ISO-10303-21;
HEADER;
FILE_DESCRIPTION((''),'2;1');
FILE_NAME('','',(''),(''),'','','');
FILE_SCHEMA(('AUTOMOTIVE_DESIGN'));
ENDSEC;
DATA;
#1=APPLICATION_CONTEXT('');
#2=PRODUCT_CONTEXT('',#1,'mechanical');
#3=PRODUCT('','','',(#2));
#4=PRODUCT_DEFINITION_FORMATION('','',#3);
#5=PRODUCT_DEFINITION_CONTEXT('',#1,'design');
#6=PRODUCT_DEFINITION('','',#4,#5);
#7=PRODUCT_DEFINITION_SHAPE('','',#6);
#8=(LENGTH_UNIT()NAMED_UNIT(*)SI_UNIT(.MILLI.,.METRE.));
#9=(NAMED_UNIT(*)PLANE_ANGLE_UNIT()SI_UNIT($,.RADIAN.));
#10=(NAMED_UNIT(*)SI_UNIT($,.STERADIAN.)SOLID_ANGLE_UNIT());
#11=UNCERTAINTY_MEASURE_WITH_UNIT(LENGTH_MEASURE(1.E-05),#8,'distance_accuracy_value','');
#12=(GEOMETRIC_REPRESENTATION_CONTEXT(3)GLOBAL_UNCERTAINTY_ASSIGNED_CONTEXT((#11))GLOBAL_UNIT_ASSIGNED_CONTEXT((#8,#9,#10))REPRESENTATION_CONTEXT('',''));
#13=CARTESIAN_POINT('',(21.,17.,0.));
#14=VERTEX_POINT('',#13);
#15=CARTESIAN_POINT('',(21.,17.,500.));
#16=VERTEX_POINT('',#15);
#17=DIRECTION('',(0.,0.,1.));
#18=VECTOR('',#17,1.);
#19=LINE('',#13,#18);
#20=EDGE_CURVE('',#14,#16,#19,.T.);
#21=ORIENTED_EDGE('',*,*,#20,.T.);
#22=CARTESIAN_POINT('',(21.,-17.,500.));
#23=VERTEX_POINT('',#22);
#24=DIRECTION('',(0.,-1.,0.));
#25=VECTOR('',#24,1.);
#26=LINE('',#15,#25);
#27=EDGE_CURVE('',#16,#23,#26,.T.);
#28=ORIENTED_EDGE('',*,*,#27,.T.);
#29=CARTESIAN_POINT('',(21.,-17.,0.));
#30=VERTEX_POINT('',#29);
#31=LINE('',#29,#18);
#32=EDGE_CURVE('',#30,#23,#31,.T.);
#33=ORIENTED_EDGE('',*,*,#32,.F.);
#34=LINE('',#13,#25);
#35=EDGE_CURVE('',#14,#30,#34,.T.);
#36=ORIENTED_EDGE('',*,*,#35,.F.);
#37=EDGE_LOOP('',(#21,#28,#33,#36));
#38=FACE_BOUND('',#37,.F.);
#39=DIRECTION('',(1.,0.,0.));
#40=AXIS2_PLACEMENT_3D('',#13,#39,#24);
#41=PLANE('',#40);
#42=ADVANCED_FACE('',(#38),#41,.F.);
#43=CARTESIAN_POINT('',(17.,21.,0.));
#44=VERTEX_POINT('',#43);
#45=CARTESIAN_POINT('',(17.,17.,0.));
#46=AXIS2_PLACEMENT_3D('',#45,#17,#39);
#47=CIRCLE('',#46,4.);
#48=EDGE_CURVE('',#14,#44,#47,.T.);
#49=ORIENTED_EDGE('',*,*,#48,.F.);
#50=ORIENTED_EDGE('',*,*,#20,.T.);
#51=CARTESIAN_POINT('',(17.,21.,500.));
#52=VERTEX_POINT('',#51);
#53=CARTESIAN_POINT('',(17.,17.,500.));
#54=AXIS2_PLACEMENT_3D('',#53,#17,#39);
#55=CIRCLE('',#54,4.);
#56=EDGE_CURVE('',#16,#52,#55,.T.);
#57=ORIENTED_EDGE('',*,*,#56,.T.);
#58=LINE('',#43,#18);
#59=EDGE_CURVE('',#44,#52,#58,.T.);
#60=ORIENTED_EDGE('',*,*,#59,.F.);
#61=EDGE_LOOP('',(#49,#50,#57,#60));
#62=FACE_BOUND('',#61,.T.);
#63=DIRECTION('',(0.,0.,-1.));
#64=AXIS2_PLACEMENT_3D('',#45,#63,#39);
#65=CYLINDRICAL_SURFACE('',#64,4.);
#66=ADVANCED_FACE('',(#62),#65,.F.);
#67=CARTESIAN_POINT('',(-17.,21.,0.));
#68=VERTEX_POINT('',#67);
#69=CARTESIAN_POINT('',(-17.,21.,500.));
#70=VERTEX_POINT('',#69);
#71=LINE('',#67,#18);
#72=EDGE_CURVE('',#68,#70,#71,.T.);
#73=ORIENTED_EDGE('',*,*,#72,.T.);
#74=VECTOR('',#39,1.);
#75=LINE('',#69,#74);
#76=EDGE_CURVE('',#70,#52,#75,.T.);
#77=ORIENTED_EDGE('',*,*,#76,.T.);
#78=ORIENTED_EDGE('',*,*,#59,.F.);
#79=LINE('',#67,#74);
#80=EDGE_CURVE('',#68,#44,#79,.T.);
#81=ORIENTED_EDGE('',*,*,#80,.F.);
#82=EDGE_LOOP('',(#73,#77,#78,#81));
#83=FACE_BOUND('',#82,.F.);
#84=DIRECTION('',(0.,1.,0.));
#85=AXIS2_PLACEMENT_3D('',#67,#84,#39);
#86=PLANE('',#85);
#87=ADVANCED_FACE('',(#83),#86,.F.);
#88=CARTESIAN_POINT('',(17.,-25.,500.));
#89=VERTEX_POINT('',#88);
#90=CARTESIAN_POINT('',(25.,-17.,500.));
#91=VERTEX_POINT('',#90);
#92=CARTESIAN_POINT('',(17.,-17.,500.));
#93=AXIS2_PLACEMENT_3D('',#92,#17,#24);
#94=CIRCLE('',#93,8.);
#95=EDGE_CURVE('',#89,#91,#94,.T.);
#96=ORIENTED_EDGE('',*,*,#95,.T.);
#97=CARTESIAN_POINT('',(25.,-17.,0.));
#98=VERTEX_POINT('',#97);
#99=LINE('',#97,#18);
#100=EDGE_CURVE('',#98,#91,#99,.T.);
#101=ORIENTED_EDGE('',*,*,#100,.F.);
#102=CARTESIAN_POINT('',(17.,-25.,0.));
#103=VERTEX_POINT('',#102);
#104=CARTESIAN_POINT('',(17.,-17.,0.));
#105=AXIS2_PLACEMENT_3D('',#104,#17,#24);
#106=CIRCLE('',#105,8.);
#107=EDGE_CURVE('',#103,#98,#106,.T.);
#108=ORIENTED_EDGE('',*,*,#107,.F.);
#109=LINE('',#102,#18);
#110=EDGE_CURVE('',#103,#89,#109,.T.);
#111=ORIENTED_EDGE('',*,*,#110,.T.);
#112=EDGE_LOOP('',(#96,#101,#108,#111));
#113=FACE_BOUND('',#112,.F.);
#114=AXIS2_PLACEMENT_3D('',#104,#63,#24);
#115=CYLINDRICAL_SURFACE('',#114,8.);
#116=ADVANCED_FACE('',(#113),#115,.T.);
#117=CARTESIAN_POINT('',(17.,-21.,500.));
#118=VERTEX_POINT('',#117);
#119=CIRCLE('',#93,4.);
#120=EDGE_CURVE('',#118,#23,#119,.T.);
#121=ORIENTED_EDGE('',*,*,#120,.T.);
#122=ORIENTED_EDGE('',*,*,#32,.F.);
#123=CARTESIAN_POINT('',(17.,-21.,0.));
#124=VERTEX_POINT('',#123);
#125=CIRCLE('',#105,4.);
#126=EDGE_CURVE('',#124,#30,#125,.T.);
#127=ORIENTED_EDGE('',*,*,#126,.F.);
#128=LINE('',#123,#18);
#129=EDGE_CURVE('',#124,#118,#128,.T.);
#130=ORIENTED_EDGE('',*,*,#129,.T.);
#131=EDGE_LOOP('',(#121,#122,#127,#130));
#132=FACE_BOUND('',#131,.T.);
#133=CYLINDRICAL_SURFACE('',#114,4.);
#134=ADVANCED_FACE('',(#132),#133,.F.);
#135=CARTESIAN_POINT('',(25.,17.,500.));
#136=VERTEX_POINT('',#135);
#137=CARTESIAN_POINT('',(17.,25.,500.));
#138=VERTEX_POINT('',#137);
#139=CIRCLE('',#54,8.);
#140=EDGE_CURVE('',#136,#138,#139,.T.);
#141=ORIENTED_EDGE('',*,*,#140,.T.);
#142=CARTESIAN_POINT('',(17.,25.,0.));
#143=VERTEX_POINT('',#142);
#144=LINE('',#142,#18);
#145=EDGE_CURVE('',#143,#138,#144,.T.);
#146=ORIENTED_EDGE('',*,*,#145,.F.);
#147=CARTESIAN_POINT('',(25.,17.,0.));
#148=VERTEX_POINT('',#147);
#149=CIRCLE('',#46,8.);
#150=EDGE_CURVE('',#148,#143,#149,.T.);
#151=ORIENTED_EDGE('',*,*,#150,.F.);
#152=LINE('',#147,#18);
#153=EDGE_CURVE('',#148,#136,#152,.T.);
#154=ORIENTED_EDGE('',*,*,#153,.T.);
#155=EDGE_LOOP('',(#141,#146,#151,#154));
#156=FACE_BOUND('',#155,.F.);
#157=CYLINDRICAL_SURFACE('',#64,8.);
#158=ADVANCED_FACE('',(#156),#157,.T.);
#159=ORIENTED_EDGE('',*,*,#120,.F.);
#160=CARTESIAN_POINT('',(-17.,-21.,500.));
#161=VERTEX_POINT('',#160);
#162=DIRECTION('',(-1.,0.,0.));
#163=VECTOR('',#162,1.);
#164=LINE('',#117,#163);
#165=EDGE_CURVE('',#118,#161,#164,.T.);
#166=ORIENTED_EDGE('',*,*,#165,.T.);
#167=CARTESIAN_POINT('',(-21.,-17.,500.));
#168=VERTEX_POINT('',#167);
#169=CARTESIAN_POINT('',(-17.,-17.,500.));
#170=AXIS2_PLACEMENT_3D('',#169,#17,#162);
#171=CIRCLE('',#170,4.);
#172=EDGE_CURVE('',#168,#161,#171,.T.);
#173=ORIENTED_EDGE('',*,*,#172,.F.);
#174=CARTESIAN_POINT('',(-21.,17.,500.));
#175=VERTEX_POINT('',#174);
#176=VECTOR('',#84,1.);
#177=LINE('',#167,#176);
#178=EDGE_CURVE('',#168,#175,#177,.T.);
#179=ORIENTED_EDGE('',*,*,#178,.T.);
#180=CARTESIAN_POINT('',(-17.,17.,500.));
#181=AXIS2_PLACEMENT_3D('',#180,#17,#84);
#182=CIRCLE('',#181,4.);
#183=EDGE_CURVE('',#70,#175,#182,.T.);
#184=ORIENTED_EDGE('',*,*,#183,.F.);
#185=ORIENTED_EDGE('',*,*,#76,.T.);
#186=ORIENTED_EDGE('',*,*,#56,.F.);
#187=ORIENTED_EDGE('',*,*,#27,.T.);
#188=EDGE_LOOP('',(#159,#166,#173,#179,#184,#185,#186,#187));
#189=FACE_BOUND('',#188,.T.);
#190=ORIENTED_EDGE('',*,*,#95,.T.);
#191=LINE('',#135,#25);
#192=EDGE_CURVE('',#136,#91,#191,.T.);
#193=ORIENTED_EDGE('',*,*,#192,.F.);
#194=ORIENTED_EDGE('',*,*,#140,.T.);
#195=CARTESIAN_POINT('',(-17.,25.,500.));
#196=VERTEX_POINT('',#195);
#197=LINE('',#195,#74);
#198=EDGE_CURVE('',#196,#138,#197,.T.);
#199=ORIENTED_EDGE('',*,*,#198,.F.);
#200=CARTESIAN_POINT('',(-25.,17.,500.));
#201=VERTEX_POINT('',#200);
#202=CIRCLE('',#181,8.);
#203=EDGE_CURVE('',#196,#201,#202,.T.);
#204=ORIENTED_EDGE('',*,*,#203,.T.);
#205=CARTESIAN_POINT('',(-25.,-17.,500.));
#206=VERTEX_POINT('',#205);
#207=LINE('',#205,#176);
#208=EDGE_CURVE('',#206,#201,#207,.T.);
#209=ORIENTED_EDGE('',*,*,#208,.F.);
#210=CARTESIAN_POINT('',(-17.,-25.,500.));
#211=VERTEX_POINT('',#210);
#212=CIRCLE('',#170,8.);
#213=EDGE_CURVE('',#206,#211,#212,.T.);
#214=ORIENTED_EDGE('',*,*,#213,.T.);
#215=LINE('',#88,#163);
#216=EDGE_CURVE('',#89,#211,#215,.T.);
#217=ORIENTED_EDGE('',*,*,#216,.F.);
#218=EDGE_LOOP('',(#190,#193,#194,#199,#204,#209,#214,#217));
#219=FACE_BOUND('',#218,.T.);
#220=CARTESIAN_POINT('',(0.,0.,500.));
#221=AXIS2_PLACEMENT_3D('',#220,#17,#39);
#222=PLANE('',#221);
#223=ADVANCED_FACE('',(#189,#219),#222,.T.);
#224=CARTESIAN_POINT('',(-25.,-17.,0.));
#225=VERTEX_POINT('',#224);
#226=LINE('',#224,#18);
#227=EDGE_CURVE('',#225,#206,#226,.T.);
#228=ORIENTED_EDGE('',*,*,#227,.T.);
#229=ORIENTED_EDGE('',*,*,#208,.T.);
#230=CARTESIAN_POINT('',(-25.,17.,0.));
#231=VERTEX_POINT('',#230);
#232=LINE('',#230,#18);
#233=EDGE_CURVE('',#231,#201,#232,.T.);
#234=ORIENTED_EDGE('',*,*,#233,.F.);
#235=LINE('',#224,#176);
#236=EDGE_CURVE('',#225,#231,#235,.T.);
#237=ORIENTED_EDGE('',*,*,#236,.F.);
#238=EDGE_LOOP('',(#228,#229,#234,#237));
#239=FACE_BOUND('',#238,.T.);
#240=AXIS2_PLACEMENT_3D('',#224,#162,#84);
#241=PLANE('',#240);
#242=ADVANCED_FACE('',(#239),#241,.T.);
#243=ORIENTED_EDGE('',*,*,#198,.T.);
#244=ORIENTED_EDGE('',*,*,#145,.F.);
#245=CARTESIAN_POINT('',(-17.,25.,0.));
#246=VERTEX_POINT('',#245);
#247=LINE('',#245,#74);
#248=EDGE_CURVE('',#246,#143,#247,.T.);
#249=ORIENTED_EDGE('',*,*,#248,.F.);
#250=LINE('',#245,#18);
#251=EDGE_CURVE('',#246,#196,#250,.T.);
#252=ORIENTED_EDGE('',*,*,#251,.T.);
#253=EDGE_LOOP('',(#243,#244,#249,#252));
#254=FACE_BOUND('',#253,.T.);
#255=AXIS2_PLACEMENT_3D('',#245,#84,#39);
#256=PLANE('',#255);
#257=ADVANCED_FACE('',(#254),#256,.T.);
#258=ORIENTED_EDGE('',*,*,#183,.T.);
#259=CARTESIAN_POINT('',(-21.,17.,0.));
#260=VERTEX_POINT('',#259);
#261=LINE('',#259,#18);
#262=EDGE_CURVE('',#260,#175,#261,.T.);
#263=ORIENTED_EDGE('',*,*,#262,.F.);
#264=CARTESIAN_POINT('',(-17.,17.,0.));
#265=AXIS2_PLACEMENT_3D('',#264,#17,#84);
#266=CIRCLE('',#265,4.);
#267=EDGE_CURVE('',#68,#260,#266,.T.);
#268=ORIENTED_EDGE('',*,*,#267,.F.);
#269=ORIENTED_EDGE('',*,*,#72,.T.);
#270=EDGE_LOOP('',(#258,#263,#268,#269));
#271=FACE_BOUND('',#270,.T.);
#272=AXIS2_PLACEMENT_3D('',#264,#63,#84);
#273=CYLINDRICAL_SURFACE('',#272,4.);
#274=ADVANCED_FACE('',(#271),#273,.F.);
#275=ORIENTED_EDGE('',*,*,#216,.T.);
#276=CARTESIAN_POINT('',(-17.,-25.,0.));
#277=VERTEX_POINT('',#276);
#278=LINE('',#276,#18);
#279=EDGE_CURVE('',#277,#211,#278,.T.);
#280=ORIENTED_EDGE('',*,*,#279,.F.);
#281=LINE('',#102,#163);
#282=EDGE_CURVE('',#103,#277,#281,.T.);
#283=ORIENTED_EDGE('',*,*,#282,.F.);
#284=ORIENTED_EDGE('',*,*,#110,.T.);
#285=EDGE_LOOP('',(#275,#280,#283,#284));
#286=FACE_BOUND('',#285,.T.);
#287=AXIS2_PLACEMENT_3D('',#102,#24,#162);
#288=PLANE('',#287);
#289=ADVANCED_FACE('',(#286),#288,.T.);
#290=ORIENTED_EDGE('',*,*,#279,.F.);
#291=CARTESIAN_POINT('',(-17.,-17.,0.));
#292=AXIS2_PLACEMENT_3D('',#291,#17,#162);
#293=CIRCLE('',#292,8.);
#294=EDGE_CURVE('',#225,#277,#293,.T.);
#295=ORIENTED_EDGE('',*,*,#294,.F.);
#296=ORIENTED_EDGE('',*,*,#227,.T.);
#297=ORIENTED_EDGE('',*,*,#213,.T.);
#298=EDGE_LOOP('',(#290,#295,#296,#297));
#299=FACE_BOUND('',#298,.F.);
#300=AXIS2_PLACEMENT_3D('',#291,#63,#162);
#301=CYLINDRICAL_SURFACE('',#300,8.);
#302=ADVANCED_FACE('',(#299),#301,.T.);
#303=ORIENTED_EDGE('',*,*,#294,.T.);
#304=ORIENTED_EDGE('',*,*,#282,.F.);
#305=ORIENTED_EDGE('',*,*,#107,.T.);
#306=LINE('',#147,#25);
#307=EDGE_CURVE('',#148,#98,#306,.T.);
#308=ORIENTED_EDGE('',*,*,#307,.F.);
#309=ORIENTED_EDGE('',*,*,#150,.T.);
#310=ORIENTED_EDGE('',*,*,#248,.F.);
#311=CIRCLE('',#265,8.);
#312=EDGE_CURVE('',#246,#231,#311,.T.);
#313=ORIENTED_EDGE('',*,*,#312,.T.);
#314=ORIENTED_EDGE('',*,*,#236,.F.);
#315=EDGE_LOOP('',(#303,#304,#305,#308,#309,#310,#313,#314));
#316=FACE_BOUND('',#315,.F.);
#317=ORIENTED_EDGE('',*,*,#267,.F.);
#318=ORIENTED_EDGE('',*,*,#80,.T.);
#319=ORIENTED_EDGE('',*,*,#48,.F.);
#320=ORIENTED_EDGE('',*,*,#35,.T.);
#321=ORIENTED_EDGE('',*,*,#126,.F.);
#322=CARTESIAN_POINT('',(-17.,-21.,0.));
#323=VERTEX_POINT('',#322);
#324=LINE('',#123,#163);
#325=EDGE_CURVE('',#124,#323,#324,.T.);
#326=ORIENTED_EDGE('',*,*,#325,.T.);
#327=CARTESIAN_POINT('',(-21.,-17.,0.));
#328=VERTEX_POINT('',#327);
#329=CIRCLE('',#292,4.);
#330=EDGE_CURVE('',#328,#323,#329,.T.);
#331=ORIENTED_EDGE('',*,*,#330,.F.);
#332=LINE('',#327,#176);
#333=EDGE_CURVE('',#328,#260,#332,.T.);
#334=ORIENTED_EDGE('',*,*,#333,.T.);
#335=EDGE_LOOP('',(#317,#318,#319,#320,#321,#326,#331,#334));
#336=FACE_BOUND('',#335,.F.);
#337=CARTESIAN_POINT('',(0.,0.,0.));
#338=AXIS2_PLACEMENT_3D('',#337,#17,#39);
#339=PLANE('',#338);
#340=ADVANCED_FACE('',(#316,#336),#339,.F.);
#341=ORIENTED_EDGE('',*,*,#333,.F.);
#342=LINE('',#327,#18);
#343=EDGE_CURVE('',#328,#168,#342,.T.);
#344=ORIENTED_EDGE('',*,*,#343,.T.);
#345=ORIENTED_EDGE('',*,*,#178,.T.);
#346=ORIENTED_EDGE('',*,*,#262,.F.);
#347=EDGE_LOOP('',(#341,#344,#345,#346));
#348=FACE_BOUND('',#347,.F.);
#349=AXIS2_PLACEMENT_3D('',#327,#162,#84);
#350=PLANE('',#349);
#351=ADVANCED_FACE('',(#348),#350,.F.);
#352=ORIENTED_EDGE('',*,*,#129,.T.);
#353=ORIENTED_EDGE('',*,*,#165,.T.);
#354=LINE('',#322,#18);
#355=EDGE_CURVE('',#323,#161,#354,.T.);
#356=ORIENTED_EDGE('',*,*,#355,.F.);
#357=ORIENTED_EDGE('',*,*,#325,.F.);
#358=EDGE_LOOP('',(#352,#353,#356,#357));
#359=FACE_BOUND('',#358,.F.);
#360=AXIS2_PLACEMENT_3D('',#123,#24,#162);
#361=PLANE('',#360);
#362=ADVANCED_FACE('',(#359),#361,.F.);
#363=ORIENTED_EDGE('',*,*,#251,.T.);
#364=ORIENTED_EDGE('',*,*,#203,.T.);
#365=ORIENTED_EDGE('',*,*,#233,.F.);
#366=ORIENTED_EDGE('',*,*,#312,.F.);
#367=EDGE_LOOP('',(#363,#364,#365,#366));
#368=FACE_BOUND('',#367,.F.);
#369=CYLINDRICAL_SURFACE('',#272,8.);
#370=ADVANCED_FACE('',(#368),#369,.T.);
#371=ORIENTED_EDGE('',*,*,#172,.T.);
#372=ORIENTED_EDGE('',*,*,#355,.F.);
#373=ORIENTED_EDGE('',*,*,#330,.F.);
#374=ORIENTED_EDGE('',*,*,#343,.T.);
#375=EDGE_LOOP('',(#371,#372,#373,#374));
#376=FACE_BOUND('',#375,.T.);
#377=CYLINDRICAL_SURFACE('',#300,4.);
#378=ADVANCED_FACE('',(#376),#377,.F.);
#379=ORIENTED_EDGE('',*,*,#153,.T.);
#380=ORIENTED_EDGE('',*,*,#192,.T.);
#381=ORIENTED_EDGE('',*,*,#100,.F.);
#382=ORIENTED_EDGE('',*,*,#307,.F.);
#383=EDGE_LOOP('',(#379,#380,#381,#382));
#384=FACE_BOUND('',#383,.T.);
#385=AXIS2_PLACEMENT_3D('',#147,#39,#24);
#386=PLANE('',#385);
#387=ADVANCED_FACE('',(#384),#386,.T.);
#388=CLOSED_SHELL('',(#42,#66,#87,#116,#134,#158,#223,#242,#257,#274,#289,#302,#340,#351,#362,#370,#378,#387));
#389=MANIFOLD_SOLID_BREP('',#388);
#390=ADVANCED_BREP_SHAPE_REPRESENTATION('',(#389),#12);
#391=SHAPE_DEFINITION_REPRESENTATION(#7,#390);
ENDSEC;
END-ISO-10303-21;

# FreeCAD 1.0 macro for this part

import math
import FreeCAD as App
import Part
import Sketcher
from FreeCAD import Vector
Q = App.Units.Quantity

doc = App.newDocument("Part")
params = doc.addObject("Spreadsheet::Sheet", "Params")
for row, (alias, value) in enumerate([
    ("sketch1_radius", "8 mm"),
    ("sketch1_radius2", "4 mm"),
    ("pad1_length", "500 mm"),
], start=1):
    params.set(f"A{row}", alias)
    params.set(f"B{row}", "=" + value)
    params.setAlias(f"B{row}", alias)

body = doc.addObject("PartDesign::Body", "Body")

sketch1 = body.newObject("Sketcher::SketchObject", "Sketch")
sketch1.AttachmentSupport = (doc.getObject("XY_Plane"), [""])
sketch1.MapMode = "FlatFace"
sketch1.addGeometry([
    Part.LineSegment(Vector(-25, 17, 0), Vector(-25, -17, 0)),
    Part.ArcOfCircle(Part.Circle(Vector(-17, -17, 0), Vector(0, 0, 1), 8), math.radians(180), math.radians(270)),
    Part.LineSegment(Vector(-17, -25, 0), Vector(17, -25, 0)),
    Part.ArcOfCircle(Part.Circle(Vector(17, -17, 0), Vector(0, 0, 1), 8), math.radians(-90), math.radians(0)),
    Part.LineSegment(Vector(25, -17, 0), Vector(25, 17, 0)),
    Part.ArcOfCircle(Part.Circle(Vector(17, 17, 0), Vector(0, 0, 1), 8), math.radians(0), math.radians(90)),
    Part.LineSegment(Vector(17, 25, 0), Vector(-17, 25, 0)),
    Part.ArcOfCircle(Part.Circle(Vector(-17, 17, 0), Vector(0, 0, 1), 8), math.radians(90), math.radians(180)),
    Part.ArcOfCircle(Part.Circle(Vector(-17, 17, 0), Vector(0, 0, 1), 4), math.radians(90), math.radians(180)),
    Part.LineSegment(Vector(-17, 21, 0), Vector(17, 21, 0)),
    Part.ArcOfCircle(Part.Circle(Vector(17, 17, 0), Vector(0, 0, 1), 4), math.radians(0), math.radians(90)),
    Part.LineSegment(Vector(21, 17, 0), Vector(21, -17, 0)),
    Part.ArcOfCircle(Part.Circle(Vector(17, -17, 0), Vector(0, 0, 1), 4), math.radians(-90), math.radians(0)),
    Part.LineSegment(Vector(17, -21, 0), Vector(-17, -21, 0)),
    Part.ArcOfCircle(Part.Circle(Vector(-17, -17, 0), Vector(0, 0, 1), 4), math.radians(180), math.radians(270)),
    Part.LineSegment(Vector(-21, -17, 0), Vector(-21, 17, 0)),
], False)
sketch1.addConstraint([
    Sketcher.Constraint("Tangent", 0, 2, 1, 1),
    Sketcher.Constraint("Tangent", 1, 2, 2, 1),
    Sketcher.Constraint("Tangent", 2, 2, 3, 1),
    Sketcher.Constraint("Tangent", 3, 2, 4, 1),
    Sketcher.Constraint("Tangent", 4, 2, 5, 1),
    Sketcher.Constraint("Tangent", 5, 2, 6, 1),
    Sketcher.Constraint("Tangent", 6, 2, 7, 1),
    Sketcher.Constraint("Tangent", 7, 2, 0, 1),
    Sketcher.Constraint("Tangent", 8, 1, 9, 1),
    Sketcher.Constraint("Tangent", 9, 2, 10, 2),
    Sketcher.Constraint("Tangent", 10, 1, 11, 1),
    Sketcher.Constraint("Tangent", 11, 2, 12, 2),
    Sketcher.Constraint("Tangent", 12, 1, 13, 1),
    Sketcher.Constraint("Tangent", 13, 2, 14, 2),
    Sketcher.Constraint("Tangent", 14, 1, 15, 1),
    Sketcher.Constraint("Tangent", 15, 2, 8, 2),
    Sketcher.Constraint("Vertical", 0),
    Sketcher.Constraint("Horizontal", 2),
    Sketcher.Constraint("Vertical", 4),
    Sketcher.Constraint("Horizontal", 6),
    Sketcher.Constraint("Horizontal", 9),
    Sketcher.Constraint("Vertical", 11),
    Sketcher.Constraint("Horizontal", 13),
    Sketcher.Constraint("Vertical", 15),
    Sketcher.Constraint("Coincident", 8, 3, 7, 3),
    Sketcher.Constraint("Coincident", 10, 3, 5, 3),
    Sketcher.Constraint("Coincident", 12, 3, 3, 3),
    Sketcher.Constraint("Equal", 1, 3),
    Sketcher.Constraint("Equal", 3, 5),
    Sketcher.Constraint("Equal", 5, 7),
    Sketcher.Constraint("Equal", 12, 14),
    Sketcher.Constraint("Symmetric", 1, 3, 5, 3, -1, 1),
    Sketcher.Constraint("Equal", 13, 0),
    Sketcher.Constraint("Radius", 1, Q("8 mm")),
    Sketcher.Constraint("Radius", 8, Q("4 mm")),
    Sketcher.Constraint("DistanceX", 0, 2, -1, 1, Q("25 mm")),
])
sketch1.setExpression("Constraints[33]", "Params.sketch1_radius")
sketch1.setExpression("Constraints[34]", "Params.sketch1_radius2")
pad1 = body.newObject("PartDesign::Pad", "Pad")
pad1.Profile = sketch1
pad1.setExpression("Length", "Params.pad1_length")

doc.recompute()
